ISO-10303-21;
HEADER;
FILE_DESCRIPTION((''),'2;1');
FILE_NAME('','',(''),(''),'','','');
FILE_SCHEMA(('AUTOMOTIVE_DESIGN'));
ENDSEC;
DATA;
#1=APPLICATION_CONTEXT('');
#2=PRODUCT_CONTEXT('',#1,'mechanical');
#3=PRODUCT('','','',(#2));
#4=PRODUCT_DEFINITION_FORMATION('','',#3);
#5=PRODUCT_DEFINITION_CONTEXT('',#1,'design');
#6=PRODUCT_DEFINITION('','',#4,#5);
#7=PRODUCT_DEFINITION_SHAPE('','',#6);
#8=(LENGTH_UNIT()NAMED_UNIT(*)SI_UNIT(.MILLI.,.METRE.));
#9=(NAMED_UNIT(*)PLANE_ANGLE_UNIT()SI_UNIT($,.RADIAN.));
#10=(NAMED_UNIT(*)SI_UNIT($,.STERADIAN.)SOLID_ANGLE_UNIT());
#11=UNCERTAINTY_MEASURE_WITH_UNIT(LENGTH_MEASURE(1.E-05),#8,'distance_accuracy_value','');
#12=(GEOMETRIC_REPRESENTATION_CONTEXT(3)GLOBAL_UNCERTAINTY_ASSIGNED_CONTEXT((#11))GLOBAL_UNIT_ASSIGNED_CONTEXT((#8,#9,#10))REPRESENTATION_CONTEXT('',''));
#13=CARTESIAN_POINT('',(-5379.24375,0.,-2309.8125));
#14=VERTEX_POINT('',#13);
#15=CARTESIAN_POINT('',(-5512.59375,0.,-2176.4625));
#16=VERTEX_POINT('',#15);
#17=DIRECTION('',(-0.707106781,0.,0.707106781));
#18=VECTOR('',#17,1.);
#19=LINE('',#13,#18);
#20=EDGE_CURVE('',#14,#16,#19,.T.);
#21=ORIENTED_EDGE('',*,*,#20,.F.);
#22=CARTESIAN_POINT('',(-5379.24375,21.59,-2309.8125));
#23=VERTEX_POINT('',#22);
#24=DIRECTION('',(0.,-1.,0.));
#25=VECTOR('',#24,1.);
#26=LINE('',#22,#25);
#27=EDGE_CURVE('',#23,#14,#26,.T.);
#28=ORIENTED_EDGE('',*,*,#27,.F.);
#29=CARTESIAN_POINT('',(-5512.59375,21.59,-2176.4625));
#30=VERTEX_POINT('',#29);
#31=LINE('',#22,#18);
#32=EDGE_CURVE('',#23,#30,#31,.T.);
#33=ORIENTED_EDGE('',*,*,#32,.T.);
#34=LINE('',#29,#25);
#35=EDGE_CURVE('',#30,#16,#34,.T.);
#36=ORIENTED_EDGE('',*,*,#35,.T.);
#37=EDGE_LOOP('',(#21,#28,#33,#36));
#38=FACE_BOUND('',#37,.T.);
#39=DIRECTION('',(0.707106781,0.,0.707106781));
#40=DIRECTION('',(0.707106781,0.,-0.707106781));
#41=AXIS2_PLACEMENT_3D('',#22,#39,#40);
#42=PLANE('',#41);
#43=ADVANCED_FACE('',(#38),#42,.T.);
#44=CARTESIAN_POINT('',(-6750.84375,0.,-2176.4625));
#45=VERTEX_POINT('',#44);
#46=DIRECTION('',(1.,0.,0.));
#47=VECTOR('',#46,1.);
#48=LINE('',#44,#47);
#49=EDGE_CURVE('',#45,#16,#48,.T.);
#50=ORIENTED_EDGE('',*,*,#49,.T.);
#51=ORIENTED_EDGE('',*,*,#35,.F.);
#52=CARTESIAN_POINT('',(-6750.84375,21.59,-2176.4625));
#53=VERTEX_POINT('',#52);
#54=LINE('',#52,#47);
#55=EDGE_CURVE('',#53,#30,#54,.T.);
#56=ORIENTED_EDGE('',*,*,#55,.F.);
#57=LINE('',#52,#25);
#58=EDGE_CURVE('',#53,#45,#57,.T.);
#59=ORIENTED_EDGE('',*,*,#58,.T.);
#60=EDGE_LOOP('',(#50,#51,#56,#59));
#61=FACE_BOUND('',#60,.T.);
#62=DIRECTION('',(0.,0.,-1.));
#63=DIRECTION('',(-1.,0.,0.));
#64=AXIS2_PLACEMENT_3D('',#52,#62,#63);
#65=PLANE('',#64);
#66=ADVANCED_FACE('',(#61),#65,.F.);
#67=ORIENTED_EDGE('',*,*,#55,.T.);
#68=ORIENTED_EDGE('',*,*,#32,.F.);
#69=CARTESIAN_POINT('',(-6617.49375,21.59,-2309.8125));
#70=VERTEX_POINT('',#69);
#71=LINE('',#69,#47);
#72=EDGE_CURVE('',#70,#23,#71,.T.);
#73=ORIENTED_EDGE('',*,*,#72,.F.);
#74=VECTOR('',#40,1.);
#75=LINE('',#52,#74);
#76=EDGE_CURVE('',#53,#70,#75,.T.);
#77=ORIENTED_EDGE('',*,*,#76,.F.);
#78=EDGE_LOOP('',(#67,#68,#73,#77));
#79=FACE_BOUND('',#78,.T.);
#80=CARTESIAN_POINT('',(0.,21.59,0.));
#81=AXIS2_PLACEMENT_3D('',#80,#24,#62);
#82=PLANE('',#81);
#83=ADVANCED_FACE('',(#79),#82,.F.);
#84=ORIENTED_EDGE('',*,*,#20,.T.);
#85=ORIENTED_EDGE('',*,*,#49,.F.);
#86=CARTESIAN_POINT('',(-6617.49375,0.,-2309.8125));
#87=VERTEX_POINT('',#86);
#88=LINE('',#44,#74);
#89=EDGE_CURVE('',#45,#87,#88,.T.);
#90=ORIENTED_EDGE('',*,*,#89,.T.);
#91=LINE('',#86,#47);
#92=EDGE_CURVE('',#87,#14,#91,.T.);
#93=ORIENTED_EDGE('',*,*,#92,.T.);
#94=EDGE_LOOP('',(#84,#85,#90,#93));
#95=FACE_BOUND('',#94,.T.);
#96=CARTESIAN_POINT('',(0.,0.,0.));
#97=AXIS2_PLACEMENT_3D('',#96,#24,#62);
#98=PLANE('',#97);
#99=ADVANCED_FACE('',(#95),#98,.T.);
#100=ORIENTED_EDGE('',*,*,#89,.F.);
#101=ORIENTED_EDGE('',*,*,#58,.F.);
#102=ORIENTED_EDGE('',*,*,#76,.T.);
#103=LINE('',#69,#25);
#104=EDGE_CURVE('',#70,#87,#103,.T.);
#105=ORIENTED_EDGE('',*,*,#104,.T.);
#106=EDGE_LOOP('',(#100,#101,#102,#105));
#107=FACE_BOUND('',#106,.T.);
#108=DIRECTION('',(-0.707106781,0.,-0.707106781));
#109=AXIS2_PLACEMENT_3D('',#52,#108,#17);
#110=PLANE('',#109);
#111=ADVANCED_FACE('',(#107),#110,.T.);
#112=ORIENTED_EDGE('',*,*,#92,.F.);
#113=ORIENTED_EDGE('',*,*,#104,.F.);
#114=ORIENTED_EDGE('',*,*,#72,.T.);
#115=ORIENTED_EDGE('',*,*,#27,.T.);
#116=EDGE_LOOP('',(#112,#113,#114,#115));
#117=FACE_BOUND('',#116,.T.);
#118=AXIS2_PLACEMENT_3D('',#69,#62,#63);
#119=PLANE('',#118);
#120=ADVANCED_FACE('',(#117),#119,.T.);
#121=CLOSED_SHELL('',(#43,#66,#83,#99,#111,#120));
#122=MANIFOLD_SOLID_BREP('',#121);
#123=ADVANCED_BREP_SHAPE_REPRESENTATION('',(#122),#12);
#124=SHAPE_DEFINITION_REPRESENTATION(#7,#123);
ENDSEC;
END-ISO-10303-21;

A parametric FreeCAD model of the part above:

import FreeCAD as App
import Part
import Sketcher
Q = App.Units.Quantity


def add_polygon(sketch, points):
    """Adds a closed chain of lines whose ends are joined by coincident constraints."""
    first, n = sketch.GeometryCount, len(points)
    for a, b in zip(points, points[1:] + points[:1]):
        sketch.addGeometry(Part.LineSegment(App.Vector(*a, 0), App.Vector(*b, 0)), False)
    for i in range(n):
        sketch.addConstraint(Sketcher.Constraint("Coincident", first + i, 2, first + (i + 1) % n, 1))

doc = App.newDocument("Part")
body = doc.addObject("PartDesign::Body", "Body")

sketch1 = body.newObject("Sketcher::SketchObject", "Sketch")
sketch1.AttachmentSupport = (doc.getObject("XZ_Plane"), [""])
sketch1.MapMode = "FlatFace"
add_polygon(sketch1, [(-5379.24375, -2309.8125), (-6617.49375, -2309.8125), (-6750.84375, -2176.4625), (-5512.59375, -2176.4625)])
sketch1.addConstraint([
    Sketcher.Constraint("Horizontal", 0),
    Sketcher.Constraint("Horizontal", 2),
    Sketcher.Constraint("Parallel", 1, 3),
    Sketcher.Constraint("Angle", 1, Q("135 deg")),
    Sketcher.Constraint("DistanceX", 1, 2, 3, 2, Q("54 in")),
    Sketcher.Constraint("DistanceX", 0, 2, 0, 1, Q("48.75 in")),
    Sketcher.Constraint("DistanceX", 0, 2, -1, 1, Q("260.53125 in")),
    Sketcher.Constraint("DistanceY", 0, 2, -1, 1, Q("90.9375 in")),
])
pad1 = body.newObject("PartDesign::Pad", "Pad")
pad1.Profile = sketch1
pad1.Length = Q("0.85 in")
pad1.Reversed = True

doc.recompute()
